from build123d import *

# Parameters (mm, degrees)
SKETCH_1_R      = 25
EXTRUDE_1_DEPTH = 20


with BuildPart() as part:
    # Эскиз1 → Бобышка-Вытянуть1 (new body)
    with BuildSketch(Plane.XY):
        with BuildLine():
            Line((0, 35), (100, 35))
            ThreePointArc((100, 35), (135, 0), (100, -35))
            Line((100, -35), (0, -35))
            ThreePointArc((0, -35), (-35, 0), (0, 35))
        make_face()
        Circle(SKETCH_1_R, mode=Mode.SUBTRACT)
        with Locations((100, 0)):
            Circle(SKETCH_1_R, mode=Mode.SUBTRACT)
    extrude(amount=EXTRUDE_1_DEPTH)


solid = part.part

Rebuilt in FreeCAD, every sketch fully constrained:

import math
import FreeCAD as App
import Part
import Sketcher
from FreeCAD import Vector
Q = App.Units.Quantity

doc = App.newDocument("Part")
body = doc.addObject("PartDesign::Body", "Body")

# Sketch on XY plane
sketch1 = doc.addObject("Sketcher::SketchObject", "Sketch")
body.addObject(sketch1)
sketch1.AttachmentSupport = (doc.XY_Plane, [""])
sketch1.MapMode = "FlatFace"
sketch1.addGeometry([
    Part.LineSegment(Vector(100, 35, 0), Vector(0, 35, 0)),  # 0
    Part.ArcOfCircle(Part.Circle(Vector(0, 0, 0), Vector(0, 0, 1), 35), math.radians(90), math.radians(270)),  # 1
    Part.LineSegment(Vector(0, -35, 0), Vector(100, -35, 0)),  # 2
    Part.ArcOfCircle(Part.Circle(Vector(100, 0, 0), Vector(0, 0, 1), 35), math.radians(-90), math.radians(90)),  # 3
    Part.Circle(Vector(100, 0, 0), Vector(0, 0, 1), 25),  # 4
    Part.Circle(Vector(0, 0, 0), Vector(0, 0, 1), 25),  # 5
], False)
sketch1.addConstraint([
    Sketcher.Constraint("Tangent", 0, 2, 1, 1),
    Sketcher.Constraint("Tangent", 1, 2, 2, 1),
    Sketcher.Constraint("Tangent", 2, 2, 3, 1),
    Sketcher.Constraint("Tangent", 3, 2, 0, 1),
    Sketcher.Constraint("Horizontal", 0),
    Sketcher.Constraint("Horizontal", 2),
    Sketcher.Constraint("Coincident", 1, 3, -1, 1),
    Sketcher.Constraint("Coincident", 5, 3, -1, 1),
    Sketcher.Constraint("Coincident", 4, 3, 3, 3),
    Sketcher.Constraint("Equal", 4, 5),
    Sketcher.Constraint("Diameter", 4, Q("50 mm")),
    Sketcher.Constraint("Radius", 1, Q("35 mm")),
    Sketcher.Constraint("DistanceX", 0, 2, 0, 1, Q("100 mm")),
])
pad1 = doc.addObject("PartDesign::Pad", "Pad")
body.addObject(pad1)
pad1.Profile = sketch1
pad1.Length = 20

doc.recompute()
